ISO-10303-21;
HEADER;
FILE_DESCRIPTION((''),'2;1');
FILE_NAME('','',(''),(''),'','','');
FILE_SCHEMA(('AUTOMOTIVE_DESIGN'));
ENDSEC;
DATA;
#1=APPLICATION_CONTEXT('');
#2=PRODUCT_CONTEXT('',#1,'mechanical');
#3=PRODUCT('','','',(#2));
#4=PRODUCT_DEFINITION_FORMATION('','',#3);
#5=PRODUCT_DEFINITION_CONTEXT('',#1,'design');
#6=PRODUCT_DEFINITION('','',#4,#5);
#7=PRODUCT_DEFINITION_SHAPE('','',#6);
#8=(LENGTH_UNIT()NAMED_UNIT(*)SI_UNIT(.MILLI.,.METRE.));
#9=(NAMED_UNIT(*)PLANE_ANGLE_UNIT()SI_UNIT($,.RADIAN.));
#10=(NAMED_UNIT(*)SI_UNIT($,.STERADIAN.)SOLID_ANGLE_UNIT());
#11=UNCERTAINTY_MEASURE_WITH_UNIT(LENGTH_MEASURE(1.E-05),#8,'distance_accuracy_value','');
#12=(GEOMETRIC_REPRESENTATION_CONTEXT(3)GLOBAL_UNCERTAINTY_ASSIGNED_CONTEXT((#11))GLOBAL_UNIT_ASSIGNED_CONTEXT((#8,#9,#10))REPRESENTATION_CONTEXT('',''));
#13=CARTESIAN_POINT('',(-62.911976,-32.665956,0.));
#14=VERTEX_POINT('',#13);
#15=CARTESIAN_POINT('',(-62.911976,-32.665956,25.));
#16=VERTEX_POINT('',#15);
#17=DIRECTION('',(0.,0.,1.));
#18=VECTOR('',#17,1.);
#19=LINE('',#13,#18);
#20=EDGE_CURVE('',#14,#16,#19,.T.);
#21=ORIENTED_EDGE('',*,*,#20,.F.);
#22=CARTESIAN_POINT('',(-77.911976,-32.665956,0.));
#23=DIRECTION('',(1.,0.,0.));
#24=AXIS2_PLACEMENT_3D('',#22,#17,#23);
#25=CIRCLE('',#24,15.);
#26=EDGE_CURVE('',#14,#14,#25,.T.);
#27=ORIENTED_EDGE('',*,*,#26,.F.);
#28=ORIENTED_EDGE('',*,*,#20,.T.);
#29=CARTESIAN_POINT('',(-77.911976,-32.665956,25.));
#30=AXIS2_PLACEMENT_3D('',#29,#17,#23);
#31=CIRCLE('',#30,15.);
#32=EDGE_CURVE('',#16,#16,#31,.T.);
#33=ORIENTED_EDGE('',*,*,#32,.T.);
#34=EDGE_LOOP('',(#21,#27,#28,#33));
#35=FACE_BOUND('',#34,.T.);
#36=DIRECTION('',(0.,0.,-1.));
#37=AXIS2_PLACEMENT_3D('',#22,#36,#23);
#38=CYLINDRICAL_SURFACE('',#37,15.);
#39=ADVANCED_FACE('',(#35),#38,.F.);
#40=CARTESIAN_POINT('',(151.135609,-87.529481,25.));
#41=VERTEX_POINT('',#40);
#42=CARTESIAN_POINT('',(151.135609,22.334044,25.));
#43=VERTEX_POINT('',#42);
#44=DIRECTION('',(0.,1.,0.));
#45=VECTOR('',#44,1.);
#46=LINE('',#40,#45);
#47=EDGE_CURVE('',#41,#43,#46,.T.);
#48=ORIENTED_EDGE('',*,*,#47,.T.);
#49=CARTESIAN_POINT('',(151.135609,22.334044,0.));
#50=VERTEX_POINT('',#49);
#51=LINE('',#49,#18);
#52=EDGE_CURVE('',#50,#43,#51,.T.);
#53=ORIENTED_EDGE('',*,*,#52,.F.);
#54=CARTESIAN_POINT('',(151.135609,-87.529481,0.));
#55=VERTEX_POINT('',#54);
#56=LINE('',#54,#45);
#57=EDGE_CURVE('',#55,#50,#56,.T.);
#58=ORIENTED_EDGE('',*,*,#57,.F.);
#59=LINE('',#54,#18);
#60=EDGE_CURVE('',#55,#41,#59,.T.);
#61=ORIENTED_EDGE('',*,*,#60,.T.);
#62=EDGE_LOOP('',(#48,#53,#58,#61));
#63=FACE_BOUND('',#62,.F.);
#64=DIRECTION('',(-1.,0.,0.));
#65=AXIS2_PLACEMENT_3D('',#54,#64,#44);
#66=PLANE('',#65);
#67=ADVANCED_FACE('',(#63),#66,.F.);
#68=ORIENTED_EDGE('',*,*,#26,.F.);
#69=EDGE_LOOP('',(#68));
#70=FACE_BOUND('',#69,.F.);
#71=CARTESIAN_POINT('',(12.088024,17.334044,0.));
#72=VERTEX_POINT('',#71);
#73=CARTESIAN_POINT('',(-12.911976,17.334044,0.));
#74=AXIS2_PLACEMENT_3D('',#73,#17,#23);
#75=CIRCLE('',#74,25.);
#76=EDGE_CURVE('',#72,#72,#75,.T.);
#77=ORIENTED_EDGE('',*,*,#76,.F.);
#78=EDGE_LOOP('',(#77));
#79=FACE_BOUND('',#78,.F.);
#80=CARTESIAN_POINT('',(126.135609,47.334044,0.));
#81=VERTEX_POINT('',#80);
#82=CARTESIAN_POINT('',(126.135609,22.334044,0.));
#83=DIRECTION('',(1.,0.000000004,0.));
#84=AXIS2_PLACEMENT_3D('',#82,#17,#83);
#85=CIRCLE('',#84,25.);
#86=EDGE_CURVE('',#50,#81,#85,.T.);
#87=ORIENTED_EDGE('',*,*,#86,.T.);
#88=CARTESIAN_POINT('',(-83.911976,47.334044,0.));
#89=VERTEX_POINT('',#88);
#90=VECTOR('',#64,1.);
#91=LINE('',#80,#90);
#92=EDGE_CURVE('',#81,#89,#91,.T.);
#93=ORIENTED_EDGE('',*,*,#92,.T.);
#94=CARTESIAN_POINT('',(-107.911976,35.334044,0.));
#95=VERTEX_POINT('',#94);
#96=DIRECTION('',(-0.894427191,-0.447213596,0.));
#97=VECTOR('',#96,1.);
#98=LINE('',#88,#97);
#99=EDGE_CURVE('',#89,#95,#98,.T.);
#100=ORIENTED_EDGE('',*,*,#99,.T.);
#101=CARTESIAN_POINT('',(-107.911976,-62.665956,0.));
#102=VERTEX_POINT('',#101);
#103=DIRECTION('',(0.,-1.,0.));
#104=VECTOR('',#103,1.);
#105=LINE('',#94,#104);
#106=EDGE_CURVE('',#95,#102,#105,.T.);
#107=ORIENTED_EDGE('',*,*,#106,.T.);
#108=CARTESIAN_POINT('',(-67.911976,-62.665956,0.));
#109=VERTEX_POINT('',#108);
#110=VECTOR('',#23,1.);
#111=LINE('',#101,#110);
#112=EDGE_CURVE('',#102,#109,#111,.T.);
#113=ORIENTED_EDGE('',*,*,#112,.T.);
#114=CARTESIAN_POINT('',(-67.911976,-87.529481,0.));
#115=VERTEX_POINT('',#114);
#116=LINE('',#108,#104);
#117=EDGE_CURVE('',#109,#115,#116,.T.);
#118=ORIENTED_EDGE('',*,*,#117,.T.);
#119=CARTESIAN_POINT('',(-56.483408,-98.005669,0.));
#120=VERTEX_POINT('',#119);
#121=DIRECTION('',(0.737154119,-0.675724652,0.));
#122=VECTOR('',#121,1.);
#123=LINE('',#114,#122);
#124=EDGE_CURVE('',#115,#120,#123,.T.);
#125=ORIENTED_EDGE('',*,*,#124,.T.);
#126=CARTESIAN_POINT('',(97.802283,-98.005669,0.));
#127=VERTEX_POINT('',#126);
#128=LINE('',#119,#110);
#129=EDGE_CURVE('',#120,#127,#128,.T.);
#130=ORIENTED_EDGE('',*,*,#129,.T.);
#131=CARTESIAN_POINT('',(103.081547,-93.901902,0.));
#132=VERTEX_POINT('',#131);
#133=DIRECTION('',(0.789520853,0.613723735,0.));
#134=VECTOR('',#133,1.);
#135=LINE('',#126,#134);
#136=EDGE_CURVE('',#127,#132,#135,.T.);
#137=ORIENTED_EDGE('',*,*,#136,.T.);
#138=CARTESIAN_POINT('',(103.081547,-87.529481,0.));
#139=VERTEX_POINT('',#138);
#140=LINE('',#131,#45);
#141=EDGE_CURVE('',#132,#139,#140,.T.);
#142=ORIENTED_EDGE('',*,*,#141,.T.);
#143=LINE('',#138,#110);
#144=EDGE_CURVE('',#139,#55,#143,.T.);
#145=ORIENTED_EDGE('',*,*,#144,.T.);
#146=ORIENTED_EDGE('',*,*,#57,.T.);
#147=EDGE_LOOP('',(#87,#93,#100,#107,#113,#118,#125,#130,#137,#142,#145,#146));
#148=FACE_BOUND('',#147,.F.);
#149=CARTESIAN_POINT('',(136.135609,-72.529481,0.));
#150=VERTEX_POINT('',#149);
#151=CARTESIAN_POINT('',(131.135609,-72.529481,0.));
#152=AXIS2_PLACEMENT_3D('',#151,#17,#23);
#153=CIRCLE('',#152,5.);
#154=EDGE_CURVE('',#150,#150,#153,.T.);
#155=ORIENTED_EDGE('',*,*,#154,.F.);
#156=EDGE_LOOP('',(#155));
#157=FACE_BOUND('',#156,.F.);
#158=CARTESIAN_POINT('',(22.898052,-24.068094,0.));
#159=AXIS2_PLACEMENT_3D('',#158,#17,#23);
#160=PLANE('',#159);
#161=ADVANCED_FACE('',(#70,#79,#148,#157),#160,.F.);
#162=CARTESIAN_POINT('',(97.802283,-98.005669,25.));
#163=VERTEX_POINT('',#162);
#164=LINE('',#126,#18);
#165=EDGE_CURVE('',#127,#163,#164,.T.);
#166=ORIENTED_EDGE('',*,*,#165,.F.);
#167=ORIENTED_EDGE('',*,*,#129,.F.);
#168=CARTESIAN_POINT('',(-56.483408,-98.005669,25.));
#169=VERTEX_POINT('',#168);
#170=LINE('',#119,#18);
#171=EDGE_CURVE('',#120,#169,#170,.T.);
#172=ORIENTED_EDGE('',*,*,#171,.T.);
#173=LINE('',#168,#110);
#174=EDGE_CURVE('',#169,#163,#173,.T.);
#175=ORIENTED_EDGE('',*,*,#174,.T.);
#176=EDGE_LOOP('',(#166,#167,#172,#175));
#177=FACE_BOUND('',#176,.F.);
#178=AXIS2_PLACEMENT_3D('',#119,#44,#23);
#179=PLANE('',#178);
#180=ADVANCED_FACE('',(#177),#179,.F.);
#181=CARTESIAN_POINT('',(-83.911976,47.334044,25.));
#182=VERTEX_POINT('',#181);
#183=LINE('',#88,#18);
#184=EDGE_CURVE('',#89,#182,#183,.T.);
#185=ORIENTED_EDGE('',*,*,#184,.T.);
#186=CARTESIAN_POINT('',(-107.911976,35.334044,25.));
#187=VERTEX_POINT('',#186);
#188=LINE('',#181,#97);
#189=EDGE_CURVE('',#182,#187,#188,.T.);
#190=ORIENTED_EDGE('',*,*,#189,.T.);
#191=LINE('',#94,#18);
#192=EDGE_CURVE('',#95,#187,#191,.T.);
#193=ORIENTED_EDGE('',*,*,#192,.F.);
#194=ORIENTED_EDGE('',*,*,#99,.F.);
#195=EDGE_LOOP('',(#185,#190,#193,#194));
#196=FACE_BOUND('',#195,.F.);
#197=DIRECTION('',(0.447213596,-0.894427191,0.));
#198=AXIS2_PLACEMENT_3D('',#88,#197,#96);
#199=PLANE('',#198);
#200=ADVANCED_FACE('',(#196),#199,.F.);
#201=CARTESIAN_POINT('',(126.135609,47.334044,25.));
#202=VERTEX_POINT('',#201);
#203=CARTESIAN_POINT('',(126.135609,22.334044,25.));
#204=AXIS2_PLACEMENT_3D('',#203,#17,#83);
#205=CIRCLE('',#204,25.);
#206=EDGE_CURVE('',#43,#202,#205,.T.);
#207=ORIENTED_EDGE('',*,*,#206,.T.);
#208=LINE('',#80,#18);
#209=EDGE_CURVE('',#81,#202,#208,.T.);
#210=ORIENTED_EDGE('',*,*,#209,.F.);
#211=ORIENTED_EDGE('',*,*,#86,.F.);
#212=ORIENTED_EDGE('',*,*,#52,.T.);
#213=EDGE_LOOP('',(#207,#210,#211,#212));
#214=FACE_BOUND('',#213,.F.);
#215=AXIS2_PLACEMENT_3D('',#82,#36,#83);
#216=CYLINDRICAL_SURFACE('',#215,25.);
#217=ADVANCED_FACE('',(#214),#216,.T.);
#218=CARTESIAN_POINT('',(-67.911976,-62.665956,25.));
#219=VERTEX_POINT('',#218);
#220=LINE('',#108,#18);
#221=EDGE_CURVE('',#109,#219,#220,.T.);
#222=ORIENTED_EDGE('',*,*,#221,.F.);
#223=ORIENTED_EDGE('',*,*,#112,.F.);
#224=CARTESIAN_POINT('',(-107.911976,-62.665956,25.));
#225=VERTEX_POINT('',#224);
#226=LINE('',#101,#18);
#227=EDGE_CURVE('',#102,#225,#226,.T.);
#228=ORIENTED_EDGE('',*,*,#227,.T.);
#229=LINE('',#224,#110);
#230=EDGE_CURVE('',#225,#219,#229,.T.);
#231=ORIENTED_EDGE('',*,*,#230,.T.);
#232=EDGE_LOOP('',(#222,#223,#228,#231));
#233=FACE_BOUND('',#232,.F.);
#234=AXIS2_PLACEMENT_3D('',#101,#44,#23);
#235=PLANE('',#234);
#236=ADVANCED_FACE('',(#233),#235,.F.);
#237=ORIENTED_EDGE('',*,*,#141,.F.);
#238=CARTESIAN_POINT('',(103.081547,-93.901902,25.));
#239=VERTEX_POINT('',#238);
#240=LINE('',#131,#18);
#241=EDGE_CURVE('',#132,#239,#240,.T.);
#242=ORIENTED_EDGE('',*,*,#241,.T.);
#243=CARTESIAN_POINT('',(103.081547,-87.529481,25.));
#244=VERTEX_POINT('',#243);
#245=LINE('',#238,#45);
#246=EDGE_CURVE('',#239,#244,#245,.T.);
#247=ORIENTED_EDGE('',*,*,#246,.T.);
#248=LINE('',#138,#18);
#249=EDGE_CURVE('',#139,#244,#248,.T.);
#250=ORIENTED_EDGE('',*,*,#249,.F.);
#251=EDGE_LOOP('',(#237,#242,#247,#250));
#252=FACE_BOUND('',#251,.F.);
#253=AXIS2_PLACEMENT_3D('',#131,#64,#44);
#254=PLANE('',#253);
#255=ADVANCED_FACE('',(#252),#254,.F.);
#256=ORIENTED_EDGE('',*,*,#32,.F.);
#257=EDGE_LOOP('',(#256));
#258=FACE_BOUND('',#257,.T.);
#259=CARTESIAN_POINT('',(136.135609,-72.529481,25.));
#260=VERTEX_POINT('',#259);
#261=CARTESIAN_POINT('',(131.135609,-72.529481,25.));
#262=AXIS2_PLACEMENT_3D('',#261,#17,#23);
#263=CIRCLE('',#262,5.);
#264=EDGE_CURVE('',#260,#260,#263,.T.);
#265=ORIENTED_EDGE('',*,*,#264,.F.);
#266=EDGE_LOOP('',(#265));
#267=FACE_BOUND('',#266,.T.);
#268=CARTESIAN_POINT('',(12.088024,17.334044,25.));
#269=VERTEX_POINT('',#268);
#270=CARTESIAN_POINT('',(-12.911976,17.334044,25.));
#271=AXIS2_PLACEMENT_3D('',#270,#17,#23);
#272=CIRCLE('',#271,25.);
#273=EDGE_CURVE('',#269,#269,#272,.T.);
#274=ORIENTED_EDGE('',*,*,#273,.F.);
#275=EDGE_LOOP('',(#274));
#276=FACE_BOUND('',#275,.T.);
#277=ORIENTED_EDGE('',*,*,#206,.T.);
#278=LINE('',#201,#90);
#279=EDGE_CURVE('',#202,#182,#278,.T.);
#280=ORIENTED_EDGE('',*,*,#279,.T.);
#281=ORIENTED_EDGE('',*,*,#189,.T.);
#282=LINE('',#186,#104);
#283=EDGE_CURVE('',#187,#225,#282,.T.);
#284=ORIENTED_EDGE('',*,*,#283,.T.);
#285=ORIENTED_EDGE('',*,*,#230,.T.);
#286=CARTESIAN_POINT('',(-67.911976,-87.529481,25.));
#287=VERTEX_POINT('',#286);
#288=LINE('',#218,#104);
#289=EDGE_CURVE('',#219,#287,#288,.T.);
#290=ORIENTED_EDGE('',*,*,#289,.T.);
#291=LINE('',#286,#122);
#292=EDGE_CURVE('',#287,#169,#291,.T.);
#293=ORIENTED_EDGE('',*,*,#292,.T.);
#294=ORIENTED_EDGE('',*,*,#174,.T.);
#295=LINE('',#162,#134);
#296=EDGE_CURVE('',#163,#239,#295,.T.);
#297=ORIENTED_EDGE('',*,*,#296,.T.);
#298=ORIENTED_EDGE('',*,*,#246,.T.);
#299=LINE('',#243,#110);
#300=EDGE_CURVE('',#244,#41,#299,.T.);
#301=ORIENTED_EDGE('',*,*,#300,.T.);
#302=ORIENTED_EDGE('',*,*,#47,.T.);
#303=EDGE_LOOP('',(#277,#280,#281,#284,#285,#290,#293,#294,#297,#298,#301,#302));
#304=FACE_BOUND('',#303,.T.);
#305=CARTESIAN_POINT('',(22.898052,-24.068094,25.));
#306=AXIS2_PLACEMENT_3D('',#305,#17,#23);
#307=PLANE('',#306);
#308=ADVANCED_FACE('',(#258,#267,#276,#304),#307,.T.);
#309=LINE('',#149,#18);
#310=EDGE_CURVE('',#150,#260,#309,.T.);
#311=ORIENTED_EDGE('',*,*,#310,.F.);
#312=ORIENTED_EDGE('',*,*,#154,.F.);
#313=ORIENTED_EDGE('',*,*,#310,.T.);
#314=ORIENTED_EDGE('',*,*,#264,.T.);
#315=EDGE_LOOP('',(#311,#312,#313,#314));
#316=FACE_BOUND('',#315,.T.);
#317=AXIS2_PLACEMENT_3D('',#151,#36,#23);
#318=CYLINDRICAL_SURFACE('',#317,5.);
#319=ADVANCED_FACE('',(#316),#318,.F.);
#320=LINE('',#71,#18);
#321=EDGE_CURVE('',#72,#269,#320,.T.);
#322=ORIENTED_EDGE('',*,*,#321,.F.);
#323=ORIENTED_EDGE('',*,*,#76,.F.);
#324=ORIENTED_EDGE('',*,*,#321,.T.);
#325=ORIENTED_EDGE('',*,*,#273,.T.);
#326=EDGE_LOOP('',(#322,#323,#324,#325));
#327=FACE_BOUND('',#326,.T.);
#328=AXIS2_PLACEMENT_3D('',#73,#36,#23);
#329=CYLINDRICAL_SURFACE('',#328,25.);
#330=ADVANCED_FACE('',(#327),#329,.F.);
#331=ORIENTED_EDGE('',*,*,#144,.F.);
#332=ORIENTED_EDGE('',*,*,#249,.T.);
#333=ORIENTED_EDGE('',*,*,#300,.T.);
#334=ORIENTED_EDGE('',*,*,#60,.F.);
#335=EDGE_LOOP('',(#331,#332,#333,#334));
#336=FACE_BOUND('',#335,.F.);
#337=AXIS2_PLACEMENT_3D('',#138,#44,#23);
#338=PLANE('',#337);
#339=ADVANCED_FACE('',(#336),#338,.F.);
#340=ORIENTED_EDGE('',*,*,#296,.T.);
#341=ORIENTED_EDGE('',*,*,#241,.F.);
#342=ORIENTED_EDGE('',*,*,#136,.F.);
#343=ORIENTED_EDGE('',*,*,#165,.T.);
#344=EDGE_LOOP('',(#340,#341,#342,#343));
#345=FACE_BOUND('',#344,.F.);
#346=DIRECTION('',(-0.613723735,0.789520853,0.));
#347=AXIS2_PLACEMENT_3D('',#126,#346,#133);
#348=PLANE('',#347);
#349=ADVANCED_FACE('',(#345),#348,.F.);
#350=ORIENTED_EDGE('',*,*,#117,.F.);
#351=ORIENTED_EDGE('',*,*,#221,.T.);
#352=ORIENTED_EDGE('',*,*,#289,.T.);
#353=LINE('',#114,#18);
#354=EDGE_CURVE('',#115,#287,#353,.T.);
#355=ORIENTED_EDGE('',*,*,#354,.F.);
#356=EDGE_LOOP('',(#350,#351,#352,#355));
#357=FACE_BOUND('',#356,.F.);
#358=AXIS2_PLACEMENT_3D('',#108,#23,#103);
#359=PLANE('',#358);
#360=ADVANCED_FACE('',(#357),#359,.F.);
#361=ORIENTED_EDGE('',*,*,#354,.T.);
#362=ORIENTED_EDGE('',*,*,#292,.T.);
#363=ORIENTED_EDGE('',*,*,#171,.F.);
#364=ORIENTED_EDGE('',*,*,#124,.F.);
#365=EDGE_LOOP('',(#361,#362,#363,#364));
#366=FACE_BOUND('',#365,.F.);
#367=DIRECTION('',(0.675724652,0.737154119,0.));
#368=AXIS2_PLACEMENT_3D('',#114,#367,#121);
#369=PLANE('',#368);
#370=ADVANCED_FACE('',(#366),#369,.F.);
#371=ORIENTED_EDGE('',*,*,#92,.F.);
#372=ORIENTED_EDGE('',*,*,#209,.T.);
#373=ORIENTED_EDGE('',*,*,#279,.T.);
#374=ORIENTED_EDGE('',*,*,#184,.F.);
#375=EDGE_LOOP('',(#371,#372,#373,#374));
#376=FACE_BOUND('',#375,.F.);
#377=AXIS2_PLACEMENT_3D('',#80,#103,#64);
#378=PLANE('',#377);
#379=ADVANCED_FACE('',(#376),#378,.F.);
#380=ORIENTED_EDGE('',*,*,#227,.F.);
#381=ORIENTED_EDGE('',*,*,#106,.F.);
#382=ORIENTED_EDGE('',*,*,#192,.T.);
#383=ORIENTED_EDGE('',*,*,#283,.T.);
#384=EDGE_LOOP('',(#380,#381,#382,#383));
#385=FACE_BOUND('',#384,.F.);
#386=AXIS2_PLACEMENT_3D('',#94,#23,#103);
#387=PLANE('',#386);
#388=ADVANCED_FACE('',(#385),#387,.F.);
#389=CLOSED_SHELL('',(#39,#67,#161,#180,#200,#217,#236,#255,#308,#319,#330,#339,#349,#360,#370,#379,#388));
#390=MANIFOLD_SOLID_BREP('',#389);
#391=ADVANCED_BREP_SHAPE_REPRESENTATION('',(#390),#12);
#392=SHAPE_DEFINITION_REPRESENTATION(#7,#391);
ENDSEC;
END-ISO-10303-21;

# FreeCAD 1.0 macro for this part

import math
import FreeCAD as App
import Part
import Sketcher

V = App.Vector

doc = App.newDocument("Part")
body = doc.addObject("PartDesign::Body", "Body")

# Sketch on XY plane
sketch1 = body.newObject("Sketcher::SketchObject", "Sketch")
sketch1.AttachmentSupport = (doc.getObject("XY_Plane"), [""])
sketch1.MapMode = "FlatFace"
sketch1.addGeometry([
    Part.LineSegment(V(-84, 47, 0), V(-108, 35, 0)),  # 0
    Part.LineSegment(V(-108, 35, 0), V(-108, -63, 0)),  # 1
    Part.LineSegment(V(-108, -63, 0), V(-68, -63, 0)),  # 2
    Part.LineSegment(V(-68, -63, 0), V(-68, -88, 0)),  # 3
    Part.LineSegment(V(-68, -88, 0), V(-56, -98, 0)),  # 4
    Part.LineSegment(V(-56, -98, 0), V(98, -98, 0)),  # 5
    Part.LineSegment(V(98, -98, 0), V(103, -94, 0)),  # 6
    Part.LineSegment(V(103, -94, 0), V(103, -88, 0)),  # 7
    Part.LineSegment(V(103, -88, 0), V(151, -88, 0)),  # 8
    Part.LineSegment(V(151, -88, 0), V(151, 22, 0)),  # 9
    Part.ArcOfCircle(Part.Circle(V(126, 22, 0), V(0, 0, 1), 25), math.radians(0), math.radians(90)),  # 10
    Part.LineSegment(V(126, 47, 0), V(-84, 47, 0)),  # 11
    Part.Circle(V(-78, -33, 0), V(0, 0, 1), 15),  # 12
    Part.Circle(V(131, -73, 0), V(0, 0, 1), 5),  # 13
    Part.Circle(V(-13, 17, 0), V(0, 0, 1), 25),  # 14
], False)
sketch1.addConstraint([
    Sketcher.Constraint("Coincident", 0, 2, 1, 1),
    Sketcher.Constraint("Coincident", 1, 2, 2, 1),
    Sketcher.Constraint("Coincident", 2, 2, 3, 1),
    Sketcher.Constraint("Coincident", 3, 2, 4, 1),
    Sketcher.Constraint("Coincident", 4, 2, 5, 1),
    Sketcher.Constraint("Coincident", 5, 2, 6, 1),
    Sketcher.Constraint("Coincident", 6, 2, 7, 1),
    Sketcher.Constraint("Coincident", 7, 2, 8, 1),
    Sketcher.Constraint("Coincident", 8, 2, 9, 1),
    Sketcher.Constraint("Tangent", 9, 2, 10, 1),
    Sketcher.Constraint("Tangent", 10, 2, 11, 1),
    Sketcher.Constraint("Coincident", 11, 2, 0, 1),
    Sketcher.Constraint("Vertical", 1),
    Sketcher.Constraint("Horizontal", 2),
    Sketcher.Constraint("Vertical", 3),
    Sketcher.Constraint("Horizontal", 5),
    Sketcher.Constraint("Vertical", 7),
    Sketcher.Constraint("Horizontal", 8),
    Sketcher.Constraint("Vertical", 9),
    Sketcher.Constraint("Horizontal", 11),
    Sketcher.Constraint("Equal", 10, 14),
    Sketcher.Constraint("Horizontal", 3, 2, 7, 2),
    Sketcher.Constraint("Diameter", 12, 30.0),
    Sketcher.Constraint("Diameter", 13, 10.0),
    Sketcher.Constraint("Diameter", 14, 50.0),
    Sketcher.Constraint("DistanceX", 2, 1, 2, 2, 40.0),
    Sketcher.Constraint("DistanceY", 1, 2, 1, 1, 98.0),
    Sketcher.Constraint("DistanceY", 12, 3, 10, 3, 55.0),
    Sketcher.Constraint("DistanceX", 10, 3, 13, 3, 5.0),
    Sketcher.Constraint("DistanceX", 12, 3, 14, 3, 65.0),
    Sketcher.Constraint("DistanceY", 12, 3, 14, 3, 50.0),
    Sketcher.Constraint("DistanceX", 0, 2, 12, 3, 30.0),
    Sketcher.Constraint("DistanceY", 12, 3, 0, 2, 68.0),
    Sketcher.Constraint("DistanceY", 7, 2, 13, 3, 15.0),
    Sketcher.Constraint("DistanceX", 0, 2, 11, 2, 24.0),
    Sketcher.Constraint("DistanceX", 5, 1, 5, 2, 154.285691),
    Sketcher.Constraint("DistanceX", 8, 1, 8, 2, 48.054062),
    Sketcher.Constraint("DistanceY", 7, 1, 7, 2, 6.372421),
    Sketcher.Constraint("Distance", 6, 6.686668),
    Sketcher.Constraint("DistanceX", 11, 2, 11, 1, 210.047585),
    Sketcher.Constraint("DistanceY", 3, 2, 3, 1, 24.863525),
    Sketcher.Constraint("DistanceX", -1, 1, 10, 3, 126.135609),
    Sketcher.Constraint("DistanceY", 13, 3, -1, 1, 72.529481),
    Sketcher.Constraint("DistanceY", 4, 2, -1, 1, 98.005669),
])
pad1 = body.newObject("PartDesign::Pad", "Pad")
pad1.Profile = sketch1
pad1.Length = 25

doc.recompute()
